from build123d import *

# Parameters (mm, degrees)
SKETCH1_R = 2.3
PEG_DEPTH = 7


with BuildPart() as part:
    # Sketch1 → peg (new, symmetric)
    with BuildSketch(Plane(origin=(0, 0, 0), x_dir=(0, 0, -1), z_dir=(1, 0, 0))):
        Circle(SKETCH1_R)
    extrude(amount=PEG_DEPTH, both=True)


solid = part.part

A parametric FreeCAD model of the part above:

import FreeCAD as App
import Part
import Sketcher
from FreeCAD import Vector

doc = App.newDocument("Part")
body = doc.addObject("PartDesign::Body", "Body")

# Sketch on YZ plane
sketch1 = doc.addObject("Sketcher::SketchObject", "Sketch")
body.addObject(sketch1)
sketch1.AttachmentSupport = (doc.YZ_Plane, [""])
sketch1.MapMode = "FlatFace"
sketch1.addGeometry(Part.Circle(Vector(0, 0, 0), Vector(0, 0, 1), 2.3), False)
sketch1.addConstraint([
    Sketcher.Constraint("Coincident", 0, 3, -1, 1),
    Sketcher.Constraint("Diameter", 0, 4.6),
])
pad1 = doc.addObject("PartDesign::Pad", "Pad")
body.addObject(pad1)
pad1.Profile = sketch1
pad1.Length = 14
pad1.Midplane = True

doc.recompute()
